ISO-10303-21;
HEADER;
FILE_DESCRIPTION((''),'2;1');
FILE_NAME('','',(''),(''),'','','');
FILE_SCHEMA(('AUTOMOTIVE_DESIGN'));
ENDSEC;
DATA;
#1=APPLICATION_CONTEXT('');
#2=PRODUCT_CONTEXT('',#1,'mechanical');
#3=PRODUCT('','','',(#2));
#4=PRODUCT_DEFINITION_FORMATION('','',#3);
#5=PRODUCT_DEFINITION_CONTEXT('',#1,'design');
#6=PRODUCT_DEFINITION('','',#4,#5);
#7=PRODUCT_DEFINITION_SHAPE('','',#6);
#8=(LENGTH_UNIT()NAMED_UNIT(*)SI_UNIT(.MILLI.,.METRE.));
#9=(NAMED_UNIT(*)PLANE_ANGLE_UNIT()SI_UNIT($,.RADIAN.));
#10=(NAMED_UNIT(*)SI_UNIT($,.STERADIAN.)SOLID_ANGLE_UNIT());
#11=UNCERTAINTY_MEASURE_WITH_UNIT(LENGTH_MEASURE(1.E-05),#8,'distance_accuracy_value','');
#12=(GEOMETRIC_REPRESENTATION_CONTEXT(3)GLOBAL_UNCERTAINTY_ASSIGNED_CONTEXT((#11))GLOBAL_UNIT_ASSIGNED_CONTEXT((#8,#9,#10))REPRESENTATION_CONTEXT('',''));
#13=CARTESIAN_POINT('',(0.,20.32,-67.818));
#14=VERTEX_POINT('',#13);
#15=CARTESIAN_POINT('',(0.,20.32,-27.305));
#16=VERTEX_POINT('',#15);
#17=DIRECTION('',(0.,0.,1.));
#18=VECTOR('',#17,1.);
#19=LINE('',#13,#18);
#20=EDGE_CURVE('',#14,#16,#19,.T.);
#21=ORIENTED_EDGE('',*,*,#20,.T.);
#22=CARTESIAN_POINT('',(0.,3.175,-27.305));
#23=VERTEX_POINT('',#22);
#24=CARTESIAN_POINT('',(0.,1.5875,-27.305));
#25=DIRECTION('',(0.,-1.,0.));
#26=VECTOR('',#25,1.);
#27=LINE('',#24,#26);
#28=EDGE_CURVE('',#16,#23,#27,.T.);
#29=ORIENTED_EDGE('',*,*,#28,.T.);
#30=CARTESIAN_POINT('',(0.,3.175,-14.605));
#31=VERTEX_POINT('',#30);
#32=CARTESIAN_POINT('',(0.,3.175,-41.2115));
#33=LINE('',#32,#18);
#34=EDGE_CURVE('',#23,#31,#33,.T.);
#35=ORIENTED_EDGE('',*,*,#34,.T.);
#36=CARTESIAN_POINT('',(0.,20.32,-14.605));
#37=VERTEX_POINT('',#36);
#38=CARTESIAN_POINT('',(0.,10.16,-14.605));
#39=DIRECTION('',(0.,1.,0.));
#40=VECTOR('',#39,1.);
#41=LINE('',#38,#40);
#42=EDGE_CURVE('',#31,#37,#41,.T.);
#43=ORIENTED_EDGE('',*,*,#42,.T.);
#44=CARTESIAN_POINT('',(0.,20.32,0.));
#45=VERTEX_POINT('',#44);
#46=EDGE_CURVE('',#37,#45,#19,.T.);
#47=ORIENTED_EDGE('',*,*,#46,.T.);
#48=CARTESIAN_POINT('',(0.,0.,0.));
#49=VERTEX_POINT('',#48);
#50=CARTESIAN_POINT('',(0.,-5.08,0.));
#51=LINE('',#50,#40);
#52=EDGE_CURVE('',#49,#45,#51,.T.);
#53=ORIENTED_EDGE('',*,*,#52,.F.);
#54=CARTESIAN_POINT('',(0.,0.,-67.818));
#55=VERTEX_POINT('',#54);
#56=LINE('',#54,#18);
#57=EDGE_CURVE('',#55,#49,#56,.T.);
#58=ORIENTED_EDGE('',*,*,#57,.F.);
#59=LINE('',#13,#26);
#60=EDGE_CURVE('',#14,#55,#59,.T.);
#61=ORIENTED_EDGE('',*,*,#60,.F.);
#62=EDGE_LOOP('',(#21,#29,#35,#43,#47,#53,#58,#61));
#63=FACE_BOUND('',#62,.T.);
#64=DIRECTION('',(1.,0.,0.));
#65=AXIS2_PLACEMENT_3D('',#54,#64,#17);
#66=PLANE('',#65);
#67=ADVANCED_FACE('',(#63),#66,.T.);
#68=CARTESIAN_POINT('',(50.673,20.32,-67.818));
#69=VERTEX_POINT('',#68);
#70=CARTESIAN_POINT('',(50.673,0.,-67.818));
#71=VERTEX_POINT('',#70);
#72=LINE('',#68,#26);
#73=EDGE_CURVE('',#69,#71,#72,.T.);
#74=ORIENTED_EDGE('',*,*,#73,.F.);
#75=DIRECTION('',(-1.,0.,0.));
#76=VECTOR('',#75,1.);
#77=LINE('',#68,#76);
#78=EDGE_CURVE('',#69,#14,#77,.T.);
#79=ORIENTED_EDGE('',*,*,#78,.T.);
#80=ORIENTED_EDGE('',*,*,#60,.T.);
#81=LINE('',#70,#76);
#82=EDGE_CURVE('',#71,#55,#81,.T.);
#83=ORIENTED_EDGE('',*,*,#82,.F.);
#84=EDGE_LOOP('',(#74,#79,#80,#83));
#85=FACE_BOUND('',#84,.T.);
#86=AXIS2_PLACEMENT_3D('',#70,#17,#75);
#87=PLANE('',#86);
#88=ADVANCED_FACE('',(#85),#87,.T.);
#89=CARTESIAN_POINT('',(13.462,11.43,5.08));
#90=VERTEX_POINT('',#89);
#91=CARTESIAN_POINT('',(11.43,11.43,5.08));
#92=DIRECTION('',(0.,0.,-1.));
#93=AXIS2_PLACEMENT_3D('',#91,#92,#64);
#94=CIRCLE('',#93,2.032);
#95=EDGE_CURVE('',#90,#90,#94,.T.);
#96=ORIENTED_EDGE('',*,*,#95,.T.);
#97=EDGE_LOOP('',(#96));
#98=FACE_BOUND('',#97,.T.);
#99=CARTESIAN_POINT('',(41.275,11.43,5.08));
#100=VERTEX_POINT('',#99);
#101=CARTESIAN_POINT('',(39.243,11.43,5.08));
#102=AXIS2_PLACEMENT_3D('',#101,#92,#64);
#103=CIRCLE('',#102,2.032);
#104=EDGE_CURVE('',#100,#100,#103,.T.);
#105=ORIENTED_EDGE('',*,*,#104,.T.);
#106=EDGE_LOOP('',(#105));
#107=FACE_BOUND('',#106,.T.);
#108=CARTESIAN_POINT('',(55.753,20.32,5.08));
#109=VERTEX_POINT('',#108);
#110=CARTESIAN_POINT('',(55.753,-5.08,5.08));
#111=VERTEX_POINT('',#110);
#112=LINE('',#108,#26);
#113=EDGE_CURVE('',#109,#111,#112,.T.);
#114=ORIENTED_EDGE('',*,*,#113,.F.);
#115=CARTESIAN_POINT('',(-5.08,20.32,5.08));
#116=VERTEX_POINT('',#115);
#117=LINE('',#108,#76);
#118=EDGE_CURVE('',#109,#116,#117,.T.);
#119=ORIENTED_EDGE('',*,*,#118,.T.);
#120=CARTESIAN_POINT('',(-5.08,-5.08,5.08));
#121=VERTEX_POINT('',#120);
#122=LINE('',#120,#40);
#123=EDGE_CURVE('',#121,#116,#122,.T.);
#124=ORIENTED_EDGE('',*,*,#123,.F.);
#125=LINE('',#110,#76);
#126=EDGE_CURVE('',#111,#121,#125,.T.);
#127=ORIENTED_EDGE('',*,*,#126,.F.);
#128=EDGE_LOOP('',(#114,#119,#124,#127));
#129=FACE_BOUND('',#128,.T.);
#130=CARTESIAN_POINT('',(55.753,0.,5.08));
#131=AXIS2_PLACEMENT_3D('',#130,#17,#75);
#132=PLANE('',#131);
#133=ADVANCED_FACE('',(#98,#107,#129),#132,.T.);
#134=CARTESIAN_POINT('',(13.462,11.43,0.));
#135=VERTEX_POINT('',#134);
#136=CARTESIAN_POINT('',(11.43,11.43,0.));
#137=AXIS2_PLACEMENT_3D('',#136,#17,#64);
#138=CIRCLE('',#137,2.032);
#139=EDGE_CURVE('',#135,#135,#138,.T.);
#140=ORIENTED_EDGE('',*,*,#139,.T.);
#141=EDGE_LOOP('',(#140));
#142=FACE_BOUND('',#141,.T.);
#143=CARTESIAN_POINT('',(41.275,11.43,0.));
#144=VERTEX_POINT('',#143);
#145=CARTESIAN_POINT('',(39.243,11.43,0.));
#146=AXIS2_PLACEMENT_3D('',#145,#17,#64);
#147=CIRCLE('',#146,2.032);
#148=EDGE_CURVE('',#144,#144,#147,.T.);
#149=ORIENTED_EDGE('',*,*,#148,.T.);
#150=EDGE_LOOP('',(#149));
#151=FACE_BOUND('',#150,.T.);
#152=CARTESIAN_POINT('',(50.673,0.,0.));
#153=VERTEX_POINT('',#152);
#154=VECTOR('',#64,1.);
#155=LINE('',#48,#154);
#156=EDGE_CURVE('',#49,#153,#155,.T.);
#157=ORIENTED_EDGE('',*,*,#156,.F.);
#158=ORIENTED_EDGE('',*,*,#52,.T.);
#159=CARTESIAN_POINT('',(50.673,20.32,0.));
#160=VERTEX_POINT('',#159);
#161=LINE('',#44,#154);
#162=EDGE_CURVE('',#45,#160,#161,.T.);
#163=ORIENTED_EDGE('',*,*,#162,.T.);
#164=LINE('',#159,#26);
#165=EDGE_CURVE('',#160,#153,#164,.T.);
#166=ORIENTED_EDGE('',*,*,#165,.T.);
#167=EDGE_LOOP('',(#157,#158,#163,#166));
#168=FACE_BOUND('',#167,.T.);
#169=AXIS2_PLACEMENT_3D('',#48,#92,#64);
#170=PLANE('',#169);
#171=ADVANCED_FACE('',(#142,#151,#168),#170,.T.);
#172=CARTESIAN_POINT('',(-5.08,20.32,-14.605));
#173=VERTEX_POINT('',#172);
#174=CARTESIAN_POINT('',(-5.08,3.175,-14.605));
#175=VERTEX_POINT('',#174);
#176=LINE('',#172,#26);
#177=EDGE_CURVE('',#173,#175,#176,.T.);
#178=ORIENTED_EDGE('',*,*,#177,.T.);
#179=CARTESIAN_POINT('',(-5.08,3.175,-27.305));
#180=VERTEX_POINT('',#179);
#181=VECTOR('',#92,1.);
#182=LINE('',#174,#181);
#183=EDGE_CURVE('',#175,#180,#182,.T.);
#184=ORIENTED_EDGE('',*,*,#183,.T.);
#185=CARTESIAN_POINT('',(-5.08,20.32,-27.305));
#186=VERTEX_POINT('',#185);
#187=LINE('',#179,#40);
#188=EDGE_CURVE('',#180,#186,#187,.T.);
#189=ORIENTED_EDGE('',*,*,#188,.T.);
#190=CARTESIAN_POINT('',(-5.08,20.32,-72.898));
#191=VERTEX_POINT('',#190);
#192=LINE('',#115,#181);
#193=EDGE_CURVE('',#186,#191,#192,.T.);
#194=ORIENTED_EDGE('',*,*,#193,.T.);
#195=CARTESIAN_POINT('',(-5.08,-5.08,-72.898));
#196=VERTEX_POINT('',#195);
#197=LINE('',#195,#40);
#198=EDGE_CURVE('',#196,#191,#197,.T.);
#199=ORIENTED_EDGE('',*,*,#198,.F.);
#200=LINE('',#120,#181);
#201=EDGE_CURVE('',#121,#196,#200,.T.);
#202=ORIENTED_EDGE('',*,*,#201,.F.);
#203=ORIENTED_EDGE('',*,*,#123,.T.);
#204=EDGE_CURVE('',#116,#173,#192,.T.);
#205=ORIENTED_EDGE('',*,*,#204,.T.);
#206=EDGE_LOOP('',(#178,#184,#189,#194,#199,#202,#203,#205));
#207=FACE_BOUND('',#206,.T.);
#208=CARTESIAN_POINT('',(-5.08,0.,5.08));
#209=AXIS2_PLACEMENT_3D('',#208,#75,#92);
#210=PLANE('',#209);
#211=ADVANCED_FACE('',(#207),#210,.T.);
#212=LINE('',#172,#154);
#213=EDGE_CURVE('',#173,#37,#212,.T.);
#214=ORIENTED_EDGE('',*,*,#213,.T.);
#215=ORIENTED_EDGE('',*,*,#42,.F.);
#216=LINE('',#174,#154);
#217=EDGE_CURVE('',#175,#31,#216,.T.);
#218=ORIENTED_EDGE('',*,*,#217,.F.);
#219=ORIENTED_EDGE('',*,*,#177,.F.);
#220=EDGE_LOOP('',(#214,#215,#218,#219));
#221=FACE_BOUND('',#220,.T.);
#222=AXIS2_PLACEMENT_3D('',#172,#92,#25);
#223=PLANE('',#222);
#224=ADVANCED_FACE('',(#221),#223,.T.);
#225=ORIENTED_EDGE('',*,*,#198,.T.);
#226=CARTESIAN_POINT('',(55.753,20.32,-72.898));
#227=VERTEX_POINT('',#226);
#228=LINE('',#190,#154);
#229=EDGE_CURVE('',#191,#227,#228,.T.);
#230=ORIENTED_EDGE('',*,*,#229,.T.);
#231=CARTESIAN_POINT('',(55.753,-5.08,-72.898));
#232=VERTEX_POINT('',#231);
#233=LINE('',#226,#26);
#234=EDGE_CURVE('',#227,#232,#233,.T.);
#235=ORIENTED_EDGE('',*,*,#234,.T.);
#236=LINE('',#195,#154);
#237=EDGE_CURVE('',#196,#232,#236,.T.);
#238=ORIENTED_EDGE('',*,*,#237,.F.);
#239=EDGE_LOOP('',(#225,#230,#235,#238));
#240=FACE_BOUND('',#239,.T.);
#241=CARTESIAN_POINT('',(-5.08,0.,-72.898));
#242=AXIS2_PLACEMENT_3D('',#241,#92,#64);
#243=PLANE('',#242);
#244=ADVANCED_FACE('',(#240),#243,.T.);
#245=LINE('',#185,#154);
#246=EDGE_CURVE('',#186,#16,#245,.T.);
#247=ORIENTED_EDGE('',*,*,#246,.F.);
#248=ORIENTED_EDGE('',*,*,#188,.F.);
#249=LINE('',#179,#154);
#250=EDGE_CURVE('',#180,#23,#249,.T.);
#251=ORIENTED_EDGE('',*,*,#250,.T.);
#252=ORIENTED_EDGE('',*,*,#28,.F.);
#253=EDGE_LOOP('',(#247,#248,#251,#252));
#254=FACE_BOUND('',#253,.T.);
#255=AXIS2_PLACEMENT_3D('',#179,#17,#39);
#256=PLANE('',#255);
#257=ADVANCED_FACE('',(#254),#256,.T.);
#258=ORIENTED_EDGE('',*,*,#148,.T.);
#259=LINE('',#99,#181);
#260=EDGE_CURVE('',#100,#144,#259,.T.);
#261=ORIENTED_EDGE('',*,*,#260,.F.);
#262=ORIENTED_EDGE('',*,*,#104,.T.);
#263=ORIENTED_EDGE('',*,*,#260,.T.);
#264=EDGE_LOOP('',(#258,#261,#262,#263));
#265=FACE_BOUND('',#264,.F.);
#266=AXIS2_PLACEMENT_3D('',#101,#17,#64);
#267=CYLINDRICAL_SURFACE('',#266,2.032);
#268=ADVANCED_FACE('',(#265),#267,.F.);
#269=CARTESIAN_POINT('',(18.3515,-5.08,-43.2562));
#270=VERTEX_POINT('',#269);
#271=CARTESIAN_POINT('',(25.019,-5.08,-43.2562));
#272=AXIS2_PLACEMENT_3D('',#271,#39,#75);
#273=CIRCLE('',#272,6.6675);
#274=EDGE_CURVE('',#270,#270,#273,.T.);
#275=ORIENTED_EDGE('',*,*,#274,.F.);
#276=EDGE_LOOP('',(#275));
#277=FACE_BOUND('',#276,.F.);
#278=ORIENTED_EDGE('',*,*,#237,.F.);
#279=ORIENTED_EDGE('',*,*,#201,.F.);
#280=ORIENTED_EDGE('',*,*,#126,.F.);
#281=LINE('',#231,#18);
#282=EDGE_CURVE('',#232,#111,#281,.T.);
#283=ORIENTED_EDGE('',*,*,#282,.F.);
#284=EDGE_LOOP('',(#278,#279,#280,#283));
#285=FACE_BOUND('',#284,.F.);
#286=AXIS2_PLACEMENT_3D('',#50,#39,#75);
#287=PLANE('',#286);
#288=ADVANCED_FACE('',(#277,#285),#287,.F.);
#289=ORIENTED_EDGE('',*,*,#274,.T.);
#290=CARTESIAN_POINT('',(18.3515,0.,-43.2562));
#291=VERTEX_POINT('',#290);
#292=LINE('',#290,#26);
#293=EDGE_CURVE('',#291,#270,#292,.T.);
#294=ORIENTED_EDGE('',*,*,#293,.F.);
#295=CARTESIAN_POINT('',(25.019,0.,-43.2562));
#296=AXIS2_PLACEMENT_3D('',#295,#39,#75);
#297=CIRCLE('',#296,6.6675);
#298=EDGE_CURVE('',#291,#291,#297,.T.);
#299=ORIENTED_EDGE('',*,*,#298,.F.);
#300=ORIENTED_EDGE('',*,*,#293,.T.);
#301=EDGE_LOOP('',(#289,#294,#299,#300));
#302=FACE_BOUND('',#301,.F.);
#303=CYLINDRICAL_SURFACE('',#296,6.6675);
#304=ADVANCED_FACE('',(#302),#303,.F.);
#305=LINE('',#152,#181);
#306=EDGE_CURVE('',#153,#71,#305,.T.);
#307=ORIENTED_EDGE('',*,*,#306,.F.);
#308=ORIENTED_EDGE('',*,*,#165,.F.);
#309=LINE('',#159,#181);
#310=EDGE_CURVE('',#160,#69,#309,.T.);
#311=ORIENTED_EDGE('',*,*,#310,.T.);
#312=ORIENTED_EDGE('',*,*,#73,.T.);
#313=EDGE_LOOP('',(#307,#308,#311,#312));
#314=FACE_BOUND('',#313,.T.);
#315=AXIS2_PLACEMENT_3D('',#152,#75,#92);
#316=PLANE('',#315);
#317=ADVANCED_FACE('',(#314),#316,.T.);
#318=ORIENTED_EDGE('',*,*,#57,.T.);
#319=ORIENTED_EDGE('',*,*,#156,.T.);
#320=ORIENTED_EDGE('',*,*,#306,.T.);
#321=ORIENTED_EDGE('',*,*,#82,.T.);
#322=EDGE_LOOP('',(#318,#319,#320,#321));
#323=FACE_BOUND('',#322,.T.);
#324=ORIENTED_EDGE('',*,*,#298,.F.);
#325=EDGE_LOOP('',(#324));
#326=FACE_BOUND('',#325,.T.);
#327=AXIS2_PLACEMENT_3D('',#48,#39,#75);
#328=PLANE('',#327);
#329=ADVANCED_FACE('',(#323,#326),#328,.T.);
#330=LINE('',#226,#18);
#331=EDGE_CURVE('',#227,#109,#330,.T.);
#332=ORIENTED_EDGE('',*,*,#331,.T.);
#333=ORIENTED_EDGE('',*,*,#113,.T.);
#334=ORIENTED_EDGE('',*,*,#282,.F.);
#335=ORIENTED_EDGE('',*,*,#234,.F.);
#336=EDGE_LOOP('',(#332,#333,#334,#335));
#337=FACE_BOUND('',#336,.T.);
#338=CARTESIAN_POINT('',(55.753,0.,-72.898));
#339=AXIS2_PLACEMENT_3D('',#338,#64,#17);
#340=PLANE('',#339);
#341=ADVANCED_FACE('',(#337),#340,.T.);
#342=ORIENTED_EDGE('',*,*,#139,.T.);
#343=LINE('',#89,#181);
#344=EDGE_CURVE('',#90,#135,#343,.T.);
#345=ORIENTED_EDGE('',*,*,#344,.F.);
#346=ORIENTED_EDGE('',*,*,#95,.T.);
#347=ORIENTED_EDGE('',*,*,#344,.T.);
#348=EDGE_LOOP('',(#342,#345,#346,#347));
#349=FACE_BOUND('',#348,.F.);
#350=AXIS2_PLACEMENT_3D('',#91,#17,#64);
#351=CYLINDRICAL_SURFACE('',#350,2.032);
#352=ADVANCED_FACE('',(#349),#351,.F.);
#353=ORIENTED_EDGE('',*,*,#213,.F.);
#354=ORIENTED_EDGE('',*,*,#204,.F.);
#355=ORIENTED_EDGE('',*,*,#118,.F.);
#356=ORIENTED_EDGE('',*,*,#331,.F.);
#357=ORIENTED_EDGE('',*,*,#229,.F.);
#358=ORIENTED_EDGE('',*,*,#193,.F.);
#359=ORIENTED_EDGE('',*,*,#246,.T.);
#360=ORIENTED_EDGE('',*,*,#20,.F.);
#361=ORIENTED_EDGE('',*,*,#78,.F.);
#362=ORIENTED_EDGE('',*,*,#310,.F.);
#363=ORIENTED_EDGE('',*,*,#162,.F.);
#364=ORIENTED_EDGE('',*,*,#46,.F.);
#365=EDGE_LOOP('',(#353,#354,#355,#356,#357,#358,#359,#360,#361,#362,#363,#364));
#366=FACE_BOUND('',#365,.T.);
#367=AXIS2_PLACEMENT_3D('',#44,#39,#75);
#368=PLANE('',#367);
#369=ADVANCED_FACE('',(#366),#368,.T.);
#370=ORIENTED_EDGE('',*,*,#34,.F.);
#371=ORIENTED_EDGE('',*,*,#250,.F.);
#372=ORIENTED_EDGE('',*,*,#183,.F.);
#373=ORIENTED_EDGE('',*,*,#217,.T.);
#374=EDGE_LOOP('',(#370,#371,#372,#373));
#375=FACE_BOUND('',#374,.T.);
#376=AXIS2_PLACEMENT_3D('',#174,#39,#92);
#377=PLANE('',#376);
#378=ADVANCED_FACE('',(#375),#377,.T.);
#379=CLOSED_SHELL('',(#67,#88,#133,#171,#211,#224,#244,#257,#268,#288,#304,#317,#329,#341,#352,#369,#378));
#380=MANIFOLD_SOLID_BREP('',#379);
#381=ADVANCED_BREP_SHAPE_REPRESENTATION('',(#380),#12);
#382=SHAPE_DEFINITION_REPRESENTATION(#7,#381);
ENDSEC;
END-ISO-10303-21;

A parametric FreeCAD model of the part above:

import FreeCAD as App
import Part
import Sketcher
from FreeCAD import Vector
Q = App.Units.Quantity

doc = App.newDocument("Part")
body = doc.addObject("PartDesign::Body", "Body")

# Sketch on XZ plane
sketch1 = body.newObject("Sketcher::SketchObject", "Sketch")
sketch1.AttachmentSupport = (doc.getObject("XZ_Plane"), [""])
sketch1.MapMode = "FlatFace"
sketch1.addGeometry([
    Part.LineSegment(Vector(56, -73, 0), Vector(-5, -73, 0)),  # 0
    Part.LineSegment(Vector(-5, -73, 0), Vector(-5, 5, 0)),  # 1
    Part.LineSegment(Vector(-5, 5, 0), Vector(56, 5, 0)),  # 2
    Part.LineSegment(Vector(56, 5, 0), Vector(56, -73, 0)),  # 3
    Part.LineSegment(Vector(51, 0, 0), Vector(0, 0, 0)),  # 4
    Part.LineSegment(Vector(0, 0, 0), Vector(0, -68, 0)),  # 5
    Part.LineSegment(Vector(0, -68, 0), Vector(51, -68, 0)),  # 6
    Part.LineSegment(Vector(51, -68, 0), Vector(51, 0, 0)),  # 7
], False)
sketch1.addConstraint([
    Sketcher.Constraint("Coincident", 0, 2, 1, 1),
    Sketcher.Constraint("Coincident", 1, 2, 2, 1),
    Sketcher.Constraint("Coincident", 2, 2, 3, 1),
    Sketcher.Constraint("Coincident", 3, 2, 0, 1),
    Sketcher.Constraint("Coincident", 4, 2, 5, 1),
    Sketcher.Constraint("Coincident", 5, 2, 6, 1),
    Sketcher.Constraint("Coincident", 6, 2, 7, 1),
    Sketcher.Constraint("Coincident", 7, 2, 4, 1),
    Sketcher.Constraint("Horizontal", 0),
    Sketcher.Constraint("Vertical", 1),
    Sketcher.Constraint("Horizontal", 2),
    Sketcher.Constraint("Vertical", 3),
    Sketcher.Constraint("Horizontal", 4),
    Sketcher.Constraint("Vertical", 5),
    Sketcher.Constraint("Horizontal", 6),
    Sketcher.Constraint("Vertical", 7),
    Sketcher.Constraint("Coincident", 4, 2, -1, 1),
    Sketcher.Constraint("DistanceY", 5, 2, 5, 1, Q("2.67 in")),
    Sketcher.Constraint("DistanceX", 0, 2, -1, 1, Q("0.2 in")),
    Sketcher.Constraint("DistanceY", -1, 1, 1, 2, Q("0.2 in")),
    Sketcher.Constraint("DistanceY", 0, 2, 5, 2, Q("0.2 in")),
    Sketcher.Constraint("DistanceX", 6, 2, 3, 2, Q("0.2 in")),
    Sketcher.Constraint("DistanceX", 4, 2, 4, 1, Q("1.995 in")),
])
pad1 = body.newObject("PartDesign::Pad", "Pad")
pad1.Profile = sketch1
pad1.Type = "TwoLengths"
pad1.Length = Q("0.8 in")
pad1.Length2 = Q("0.2 in")
pad1.Reversed = True

# Sketch on XZ plane
sketch2 = body.newObject("Sketcher::SketchObject", "Sketch001")
sketch2.AttachmentSupport = (doc.getObject("XZ_Plane"), [""])
sketch2.MapMode = "FlatFace"
sketch2.addGeometry([
    Part.LineSegment(Vector(0, -68, 0), Vector(0, 0, 0)),
    Part.LineSegment(Vector(0, 0, 0), Vector(51, 0, 0)),
    Part.LineSegment(Vector(51, 0, 0), Vector(51, -68, 0)),
    Part.LineSegment(Vector(51, -68, 0), Vector(0, -68, 0)),
], False)
sketch2.addConstraint([
    Sketcher.Constraint("Coincident", 0, 2, 1, 1),
    Sketcher.Constraint("Coincident", 1, 2, 2, 1),
    Sketcher.Constraint("Coincident", 2, 2, 3, 1),
    Sketcher.Constraint("Coincident", 3, 2, 0, 1),
    Sketcher.Constraint("Vertical", 0),
    Sketcher.Constraint("Horizontal", 1),
    Sketcher.Constraint("Vertical", 2),
    Sketcher.Constraint("Horizontal", 3),
    Sketcher.Constraint("Coincident", 0, 2, -1, 1),
    Sketcher.Constraint("DistanceY", 0, 1, 0, 2, Q("2.67 in")),
    Sketcher.Constraint("DistanceX", 1, 1, 1, 2, Q("1.995 in")),
])
pad2 = body.newObject("PartDesign::Pad", "Pad001")
pad2.Profile = sketch2
pad2.Length = Q("0.2 in")

# Sketch on XZ plane
sketch3 = body.newObject("Sketcher::SketchObject", "Sketch002")
sketch3.AttachmentSupport = (doc.getObject("XZ_Plane"), [""])
sketch3.MapMode = "FlatFace"
sketch3.addGeometry(Part.Circle(Vector(25, -43, 0), Vector(0, 0, 1), 7), False)
sketch3.addConstraint([
    Sketcher.Constraint("Diameter", 0, Q("0.525 in")),
    Sketcher.Constraint("DistanceX", -1, 1, 0, 3, Q("0.985 in")),
    Sketcher.Constraint("DistanceY", 0, 3, -1, 1, Q("1.703 in")),
])
pocket1 = body.newObject("PartDesign::Pocket", "Pocket")
pocket1.Profile = sketch3
pocket1.Length = Q("5 in")
pocket1.Reversed = True

# Sketch on YZ plane
sketch4 = body.newObject("Sketcher::SketchObject", "Sketch003")
sketch4.AttachmentSupport = (doc.getObject("YZ_Plane"), [""])
sketch4.MapMode = "FlatFace"
sketch4.AttachmentOffset = App.Placement(Vector(0, 0, -0.2 * 25.4), App.Rotation())
sketch4.addGeometry([
    Part.LineSegment(Vector(20, -15, 0), Vector(20, -27, 0)),
    Part.LineSegment(Vector(20, -27, 0), Vector(3, -27, 0)),
    Part.LineSegment(Vector(3, -27, 0), Vector(3, -15, 0)),
    Part.LineSegment(Vector(3, -15, 0), Vector(20, -15, 0)),
], False)
sketch4.addConstraint([
    Sketcher.Constraint("Coincident", 0, 2, 1, 1),
    Sketcher.Constraint("Coincident", 1, 2, 2, 1),
    Sketcher.Constraint("Coincident", 2, 2, 3, 1),
    Sketcher.Constraint("Coincident", 3, 2, 0, 1),
    Sketcher.Constraint("Vertical", 0),
    Sketcher.Constraint("Horizontal", 1),
    Sketcher.Constraint("Vertical", 2),
    Sketcher.Constraint("Horizontal", 3),
    Sketcher.Constraint("DistanceY", 0, 2, 0, 1, Q("0.5 in")),
    Sketcher.Constraint("DistanceX", 1, 2, 1, 1, Q("0.675 in")),
    Sketcher.Constraint("DistanceX", -1, 1, 0, 2, Q("0.8 in")),
    Sketcher.Constraint("DistanceY", 0, 2, -1, 1, Q("1.075 in")),
])
pocket2 = body.newObject("PartDesign::Pocket", "Pocket001")
pocket2.Profile = sketch4
pocket2.Length = Q("1 in")
pocket2.Reversed = True

# Sketch on XY plane
sketch5 = body.newObject("Sketcher::SketchObject", "Sketch004")
sketch5.AttachmentSupport = (doc.getObject("XY_Plane"), [""])
sketch5.MapMode = "FlatFace"
sketch5.AttachmentOffset = App.Placement(Vector(0, 0, 0.2 * 25.4), App.Rotation())
sketch5.addGeometry([
    Part.Circle(Vector(11.4, 11.4, 0), Vector(0, 0, 1), 2),
    Part.Circle(Vector(39.2, 11.4, 0), Vector(0, 0, 1), 2),
], False)
sketch5.addConstraint([
    Sketcher.Constraint("Equal", 0, 1),
    Sketcher.Constraint("Horizontal", 0, 3, 1, 3),
    Sketcher.Constraint("Diameter", 0, Q("0.16 in")),
    Sketcher.Constraint("DistanceX", -1, 1, 0, 3, Q("0.45 in")),
    Sketcher.Constraint("DistanceY", -1, 1, 0, 3, Q("0.45 in")),
    Sketcher.Constraint("DistanceX", -1, 1, 1, 3, Q("1.545 in")),
])
pocket3 = body.newObject("PartDesign::Pocket", "Pocket002")
pocket3.Profile = sketch5
pocket3.Length = Q("1 in")

doc.recompute()
